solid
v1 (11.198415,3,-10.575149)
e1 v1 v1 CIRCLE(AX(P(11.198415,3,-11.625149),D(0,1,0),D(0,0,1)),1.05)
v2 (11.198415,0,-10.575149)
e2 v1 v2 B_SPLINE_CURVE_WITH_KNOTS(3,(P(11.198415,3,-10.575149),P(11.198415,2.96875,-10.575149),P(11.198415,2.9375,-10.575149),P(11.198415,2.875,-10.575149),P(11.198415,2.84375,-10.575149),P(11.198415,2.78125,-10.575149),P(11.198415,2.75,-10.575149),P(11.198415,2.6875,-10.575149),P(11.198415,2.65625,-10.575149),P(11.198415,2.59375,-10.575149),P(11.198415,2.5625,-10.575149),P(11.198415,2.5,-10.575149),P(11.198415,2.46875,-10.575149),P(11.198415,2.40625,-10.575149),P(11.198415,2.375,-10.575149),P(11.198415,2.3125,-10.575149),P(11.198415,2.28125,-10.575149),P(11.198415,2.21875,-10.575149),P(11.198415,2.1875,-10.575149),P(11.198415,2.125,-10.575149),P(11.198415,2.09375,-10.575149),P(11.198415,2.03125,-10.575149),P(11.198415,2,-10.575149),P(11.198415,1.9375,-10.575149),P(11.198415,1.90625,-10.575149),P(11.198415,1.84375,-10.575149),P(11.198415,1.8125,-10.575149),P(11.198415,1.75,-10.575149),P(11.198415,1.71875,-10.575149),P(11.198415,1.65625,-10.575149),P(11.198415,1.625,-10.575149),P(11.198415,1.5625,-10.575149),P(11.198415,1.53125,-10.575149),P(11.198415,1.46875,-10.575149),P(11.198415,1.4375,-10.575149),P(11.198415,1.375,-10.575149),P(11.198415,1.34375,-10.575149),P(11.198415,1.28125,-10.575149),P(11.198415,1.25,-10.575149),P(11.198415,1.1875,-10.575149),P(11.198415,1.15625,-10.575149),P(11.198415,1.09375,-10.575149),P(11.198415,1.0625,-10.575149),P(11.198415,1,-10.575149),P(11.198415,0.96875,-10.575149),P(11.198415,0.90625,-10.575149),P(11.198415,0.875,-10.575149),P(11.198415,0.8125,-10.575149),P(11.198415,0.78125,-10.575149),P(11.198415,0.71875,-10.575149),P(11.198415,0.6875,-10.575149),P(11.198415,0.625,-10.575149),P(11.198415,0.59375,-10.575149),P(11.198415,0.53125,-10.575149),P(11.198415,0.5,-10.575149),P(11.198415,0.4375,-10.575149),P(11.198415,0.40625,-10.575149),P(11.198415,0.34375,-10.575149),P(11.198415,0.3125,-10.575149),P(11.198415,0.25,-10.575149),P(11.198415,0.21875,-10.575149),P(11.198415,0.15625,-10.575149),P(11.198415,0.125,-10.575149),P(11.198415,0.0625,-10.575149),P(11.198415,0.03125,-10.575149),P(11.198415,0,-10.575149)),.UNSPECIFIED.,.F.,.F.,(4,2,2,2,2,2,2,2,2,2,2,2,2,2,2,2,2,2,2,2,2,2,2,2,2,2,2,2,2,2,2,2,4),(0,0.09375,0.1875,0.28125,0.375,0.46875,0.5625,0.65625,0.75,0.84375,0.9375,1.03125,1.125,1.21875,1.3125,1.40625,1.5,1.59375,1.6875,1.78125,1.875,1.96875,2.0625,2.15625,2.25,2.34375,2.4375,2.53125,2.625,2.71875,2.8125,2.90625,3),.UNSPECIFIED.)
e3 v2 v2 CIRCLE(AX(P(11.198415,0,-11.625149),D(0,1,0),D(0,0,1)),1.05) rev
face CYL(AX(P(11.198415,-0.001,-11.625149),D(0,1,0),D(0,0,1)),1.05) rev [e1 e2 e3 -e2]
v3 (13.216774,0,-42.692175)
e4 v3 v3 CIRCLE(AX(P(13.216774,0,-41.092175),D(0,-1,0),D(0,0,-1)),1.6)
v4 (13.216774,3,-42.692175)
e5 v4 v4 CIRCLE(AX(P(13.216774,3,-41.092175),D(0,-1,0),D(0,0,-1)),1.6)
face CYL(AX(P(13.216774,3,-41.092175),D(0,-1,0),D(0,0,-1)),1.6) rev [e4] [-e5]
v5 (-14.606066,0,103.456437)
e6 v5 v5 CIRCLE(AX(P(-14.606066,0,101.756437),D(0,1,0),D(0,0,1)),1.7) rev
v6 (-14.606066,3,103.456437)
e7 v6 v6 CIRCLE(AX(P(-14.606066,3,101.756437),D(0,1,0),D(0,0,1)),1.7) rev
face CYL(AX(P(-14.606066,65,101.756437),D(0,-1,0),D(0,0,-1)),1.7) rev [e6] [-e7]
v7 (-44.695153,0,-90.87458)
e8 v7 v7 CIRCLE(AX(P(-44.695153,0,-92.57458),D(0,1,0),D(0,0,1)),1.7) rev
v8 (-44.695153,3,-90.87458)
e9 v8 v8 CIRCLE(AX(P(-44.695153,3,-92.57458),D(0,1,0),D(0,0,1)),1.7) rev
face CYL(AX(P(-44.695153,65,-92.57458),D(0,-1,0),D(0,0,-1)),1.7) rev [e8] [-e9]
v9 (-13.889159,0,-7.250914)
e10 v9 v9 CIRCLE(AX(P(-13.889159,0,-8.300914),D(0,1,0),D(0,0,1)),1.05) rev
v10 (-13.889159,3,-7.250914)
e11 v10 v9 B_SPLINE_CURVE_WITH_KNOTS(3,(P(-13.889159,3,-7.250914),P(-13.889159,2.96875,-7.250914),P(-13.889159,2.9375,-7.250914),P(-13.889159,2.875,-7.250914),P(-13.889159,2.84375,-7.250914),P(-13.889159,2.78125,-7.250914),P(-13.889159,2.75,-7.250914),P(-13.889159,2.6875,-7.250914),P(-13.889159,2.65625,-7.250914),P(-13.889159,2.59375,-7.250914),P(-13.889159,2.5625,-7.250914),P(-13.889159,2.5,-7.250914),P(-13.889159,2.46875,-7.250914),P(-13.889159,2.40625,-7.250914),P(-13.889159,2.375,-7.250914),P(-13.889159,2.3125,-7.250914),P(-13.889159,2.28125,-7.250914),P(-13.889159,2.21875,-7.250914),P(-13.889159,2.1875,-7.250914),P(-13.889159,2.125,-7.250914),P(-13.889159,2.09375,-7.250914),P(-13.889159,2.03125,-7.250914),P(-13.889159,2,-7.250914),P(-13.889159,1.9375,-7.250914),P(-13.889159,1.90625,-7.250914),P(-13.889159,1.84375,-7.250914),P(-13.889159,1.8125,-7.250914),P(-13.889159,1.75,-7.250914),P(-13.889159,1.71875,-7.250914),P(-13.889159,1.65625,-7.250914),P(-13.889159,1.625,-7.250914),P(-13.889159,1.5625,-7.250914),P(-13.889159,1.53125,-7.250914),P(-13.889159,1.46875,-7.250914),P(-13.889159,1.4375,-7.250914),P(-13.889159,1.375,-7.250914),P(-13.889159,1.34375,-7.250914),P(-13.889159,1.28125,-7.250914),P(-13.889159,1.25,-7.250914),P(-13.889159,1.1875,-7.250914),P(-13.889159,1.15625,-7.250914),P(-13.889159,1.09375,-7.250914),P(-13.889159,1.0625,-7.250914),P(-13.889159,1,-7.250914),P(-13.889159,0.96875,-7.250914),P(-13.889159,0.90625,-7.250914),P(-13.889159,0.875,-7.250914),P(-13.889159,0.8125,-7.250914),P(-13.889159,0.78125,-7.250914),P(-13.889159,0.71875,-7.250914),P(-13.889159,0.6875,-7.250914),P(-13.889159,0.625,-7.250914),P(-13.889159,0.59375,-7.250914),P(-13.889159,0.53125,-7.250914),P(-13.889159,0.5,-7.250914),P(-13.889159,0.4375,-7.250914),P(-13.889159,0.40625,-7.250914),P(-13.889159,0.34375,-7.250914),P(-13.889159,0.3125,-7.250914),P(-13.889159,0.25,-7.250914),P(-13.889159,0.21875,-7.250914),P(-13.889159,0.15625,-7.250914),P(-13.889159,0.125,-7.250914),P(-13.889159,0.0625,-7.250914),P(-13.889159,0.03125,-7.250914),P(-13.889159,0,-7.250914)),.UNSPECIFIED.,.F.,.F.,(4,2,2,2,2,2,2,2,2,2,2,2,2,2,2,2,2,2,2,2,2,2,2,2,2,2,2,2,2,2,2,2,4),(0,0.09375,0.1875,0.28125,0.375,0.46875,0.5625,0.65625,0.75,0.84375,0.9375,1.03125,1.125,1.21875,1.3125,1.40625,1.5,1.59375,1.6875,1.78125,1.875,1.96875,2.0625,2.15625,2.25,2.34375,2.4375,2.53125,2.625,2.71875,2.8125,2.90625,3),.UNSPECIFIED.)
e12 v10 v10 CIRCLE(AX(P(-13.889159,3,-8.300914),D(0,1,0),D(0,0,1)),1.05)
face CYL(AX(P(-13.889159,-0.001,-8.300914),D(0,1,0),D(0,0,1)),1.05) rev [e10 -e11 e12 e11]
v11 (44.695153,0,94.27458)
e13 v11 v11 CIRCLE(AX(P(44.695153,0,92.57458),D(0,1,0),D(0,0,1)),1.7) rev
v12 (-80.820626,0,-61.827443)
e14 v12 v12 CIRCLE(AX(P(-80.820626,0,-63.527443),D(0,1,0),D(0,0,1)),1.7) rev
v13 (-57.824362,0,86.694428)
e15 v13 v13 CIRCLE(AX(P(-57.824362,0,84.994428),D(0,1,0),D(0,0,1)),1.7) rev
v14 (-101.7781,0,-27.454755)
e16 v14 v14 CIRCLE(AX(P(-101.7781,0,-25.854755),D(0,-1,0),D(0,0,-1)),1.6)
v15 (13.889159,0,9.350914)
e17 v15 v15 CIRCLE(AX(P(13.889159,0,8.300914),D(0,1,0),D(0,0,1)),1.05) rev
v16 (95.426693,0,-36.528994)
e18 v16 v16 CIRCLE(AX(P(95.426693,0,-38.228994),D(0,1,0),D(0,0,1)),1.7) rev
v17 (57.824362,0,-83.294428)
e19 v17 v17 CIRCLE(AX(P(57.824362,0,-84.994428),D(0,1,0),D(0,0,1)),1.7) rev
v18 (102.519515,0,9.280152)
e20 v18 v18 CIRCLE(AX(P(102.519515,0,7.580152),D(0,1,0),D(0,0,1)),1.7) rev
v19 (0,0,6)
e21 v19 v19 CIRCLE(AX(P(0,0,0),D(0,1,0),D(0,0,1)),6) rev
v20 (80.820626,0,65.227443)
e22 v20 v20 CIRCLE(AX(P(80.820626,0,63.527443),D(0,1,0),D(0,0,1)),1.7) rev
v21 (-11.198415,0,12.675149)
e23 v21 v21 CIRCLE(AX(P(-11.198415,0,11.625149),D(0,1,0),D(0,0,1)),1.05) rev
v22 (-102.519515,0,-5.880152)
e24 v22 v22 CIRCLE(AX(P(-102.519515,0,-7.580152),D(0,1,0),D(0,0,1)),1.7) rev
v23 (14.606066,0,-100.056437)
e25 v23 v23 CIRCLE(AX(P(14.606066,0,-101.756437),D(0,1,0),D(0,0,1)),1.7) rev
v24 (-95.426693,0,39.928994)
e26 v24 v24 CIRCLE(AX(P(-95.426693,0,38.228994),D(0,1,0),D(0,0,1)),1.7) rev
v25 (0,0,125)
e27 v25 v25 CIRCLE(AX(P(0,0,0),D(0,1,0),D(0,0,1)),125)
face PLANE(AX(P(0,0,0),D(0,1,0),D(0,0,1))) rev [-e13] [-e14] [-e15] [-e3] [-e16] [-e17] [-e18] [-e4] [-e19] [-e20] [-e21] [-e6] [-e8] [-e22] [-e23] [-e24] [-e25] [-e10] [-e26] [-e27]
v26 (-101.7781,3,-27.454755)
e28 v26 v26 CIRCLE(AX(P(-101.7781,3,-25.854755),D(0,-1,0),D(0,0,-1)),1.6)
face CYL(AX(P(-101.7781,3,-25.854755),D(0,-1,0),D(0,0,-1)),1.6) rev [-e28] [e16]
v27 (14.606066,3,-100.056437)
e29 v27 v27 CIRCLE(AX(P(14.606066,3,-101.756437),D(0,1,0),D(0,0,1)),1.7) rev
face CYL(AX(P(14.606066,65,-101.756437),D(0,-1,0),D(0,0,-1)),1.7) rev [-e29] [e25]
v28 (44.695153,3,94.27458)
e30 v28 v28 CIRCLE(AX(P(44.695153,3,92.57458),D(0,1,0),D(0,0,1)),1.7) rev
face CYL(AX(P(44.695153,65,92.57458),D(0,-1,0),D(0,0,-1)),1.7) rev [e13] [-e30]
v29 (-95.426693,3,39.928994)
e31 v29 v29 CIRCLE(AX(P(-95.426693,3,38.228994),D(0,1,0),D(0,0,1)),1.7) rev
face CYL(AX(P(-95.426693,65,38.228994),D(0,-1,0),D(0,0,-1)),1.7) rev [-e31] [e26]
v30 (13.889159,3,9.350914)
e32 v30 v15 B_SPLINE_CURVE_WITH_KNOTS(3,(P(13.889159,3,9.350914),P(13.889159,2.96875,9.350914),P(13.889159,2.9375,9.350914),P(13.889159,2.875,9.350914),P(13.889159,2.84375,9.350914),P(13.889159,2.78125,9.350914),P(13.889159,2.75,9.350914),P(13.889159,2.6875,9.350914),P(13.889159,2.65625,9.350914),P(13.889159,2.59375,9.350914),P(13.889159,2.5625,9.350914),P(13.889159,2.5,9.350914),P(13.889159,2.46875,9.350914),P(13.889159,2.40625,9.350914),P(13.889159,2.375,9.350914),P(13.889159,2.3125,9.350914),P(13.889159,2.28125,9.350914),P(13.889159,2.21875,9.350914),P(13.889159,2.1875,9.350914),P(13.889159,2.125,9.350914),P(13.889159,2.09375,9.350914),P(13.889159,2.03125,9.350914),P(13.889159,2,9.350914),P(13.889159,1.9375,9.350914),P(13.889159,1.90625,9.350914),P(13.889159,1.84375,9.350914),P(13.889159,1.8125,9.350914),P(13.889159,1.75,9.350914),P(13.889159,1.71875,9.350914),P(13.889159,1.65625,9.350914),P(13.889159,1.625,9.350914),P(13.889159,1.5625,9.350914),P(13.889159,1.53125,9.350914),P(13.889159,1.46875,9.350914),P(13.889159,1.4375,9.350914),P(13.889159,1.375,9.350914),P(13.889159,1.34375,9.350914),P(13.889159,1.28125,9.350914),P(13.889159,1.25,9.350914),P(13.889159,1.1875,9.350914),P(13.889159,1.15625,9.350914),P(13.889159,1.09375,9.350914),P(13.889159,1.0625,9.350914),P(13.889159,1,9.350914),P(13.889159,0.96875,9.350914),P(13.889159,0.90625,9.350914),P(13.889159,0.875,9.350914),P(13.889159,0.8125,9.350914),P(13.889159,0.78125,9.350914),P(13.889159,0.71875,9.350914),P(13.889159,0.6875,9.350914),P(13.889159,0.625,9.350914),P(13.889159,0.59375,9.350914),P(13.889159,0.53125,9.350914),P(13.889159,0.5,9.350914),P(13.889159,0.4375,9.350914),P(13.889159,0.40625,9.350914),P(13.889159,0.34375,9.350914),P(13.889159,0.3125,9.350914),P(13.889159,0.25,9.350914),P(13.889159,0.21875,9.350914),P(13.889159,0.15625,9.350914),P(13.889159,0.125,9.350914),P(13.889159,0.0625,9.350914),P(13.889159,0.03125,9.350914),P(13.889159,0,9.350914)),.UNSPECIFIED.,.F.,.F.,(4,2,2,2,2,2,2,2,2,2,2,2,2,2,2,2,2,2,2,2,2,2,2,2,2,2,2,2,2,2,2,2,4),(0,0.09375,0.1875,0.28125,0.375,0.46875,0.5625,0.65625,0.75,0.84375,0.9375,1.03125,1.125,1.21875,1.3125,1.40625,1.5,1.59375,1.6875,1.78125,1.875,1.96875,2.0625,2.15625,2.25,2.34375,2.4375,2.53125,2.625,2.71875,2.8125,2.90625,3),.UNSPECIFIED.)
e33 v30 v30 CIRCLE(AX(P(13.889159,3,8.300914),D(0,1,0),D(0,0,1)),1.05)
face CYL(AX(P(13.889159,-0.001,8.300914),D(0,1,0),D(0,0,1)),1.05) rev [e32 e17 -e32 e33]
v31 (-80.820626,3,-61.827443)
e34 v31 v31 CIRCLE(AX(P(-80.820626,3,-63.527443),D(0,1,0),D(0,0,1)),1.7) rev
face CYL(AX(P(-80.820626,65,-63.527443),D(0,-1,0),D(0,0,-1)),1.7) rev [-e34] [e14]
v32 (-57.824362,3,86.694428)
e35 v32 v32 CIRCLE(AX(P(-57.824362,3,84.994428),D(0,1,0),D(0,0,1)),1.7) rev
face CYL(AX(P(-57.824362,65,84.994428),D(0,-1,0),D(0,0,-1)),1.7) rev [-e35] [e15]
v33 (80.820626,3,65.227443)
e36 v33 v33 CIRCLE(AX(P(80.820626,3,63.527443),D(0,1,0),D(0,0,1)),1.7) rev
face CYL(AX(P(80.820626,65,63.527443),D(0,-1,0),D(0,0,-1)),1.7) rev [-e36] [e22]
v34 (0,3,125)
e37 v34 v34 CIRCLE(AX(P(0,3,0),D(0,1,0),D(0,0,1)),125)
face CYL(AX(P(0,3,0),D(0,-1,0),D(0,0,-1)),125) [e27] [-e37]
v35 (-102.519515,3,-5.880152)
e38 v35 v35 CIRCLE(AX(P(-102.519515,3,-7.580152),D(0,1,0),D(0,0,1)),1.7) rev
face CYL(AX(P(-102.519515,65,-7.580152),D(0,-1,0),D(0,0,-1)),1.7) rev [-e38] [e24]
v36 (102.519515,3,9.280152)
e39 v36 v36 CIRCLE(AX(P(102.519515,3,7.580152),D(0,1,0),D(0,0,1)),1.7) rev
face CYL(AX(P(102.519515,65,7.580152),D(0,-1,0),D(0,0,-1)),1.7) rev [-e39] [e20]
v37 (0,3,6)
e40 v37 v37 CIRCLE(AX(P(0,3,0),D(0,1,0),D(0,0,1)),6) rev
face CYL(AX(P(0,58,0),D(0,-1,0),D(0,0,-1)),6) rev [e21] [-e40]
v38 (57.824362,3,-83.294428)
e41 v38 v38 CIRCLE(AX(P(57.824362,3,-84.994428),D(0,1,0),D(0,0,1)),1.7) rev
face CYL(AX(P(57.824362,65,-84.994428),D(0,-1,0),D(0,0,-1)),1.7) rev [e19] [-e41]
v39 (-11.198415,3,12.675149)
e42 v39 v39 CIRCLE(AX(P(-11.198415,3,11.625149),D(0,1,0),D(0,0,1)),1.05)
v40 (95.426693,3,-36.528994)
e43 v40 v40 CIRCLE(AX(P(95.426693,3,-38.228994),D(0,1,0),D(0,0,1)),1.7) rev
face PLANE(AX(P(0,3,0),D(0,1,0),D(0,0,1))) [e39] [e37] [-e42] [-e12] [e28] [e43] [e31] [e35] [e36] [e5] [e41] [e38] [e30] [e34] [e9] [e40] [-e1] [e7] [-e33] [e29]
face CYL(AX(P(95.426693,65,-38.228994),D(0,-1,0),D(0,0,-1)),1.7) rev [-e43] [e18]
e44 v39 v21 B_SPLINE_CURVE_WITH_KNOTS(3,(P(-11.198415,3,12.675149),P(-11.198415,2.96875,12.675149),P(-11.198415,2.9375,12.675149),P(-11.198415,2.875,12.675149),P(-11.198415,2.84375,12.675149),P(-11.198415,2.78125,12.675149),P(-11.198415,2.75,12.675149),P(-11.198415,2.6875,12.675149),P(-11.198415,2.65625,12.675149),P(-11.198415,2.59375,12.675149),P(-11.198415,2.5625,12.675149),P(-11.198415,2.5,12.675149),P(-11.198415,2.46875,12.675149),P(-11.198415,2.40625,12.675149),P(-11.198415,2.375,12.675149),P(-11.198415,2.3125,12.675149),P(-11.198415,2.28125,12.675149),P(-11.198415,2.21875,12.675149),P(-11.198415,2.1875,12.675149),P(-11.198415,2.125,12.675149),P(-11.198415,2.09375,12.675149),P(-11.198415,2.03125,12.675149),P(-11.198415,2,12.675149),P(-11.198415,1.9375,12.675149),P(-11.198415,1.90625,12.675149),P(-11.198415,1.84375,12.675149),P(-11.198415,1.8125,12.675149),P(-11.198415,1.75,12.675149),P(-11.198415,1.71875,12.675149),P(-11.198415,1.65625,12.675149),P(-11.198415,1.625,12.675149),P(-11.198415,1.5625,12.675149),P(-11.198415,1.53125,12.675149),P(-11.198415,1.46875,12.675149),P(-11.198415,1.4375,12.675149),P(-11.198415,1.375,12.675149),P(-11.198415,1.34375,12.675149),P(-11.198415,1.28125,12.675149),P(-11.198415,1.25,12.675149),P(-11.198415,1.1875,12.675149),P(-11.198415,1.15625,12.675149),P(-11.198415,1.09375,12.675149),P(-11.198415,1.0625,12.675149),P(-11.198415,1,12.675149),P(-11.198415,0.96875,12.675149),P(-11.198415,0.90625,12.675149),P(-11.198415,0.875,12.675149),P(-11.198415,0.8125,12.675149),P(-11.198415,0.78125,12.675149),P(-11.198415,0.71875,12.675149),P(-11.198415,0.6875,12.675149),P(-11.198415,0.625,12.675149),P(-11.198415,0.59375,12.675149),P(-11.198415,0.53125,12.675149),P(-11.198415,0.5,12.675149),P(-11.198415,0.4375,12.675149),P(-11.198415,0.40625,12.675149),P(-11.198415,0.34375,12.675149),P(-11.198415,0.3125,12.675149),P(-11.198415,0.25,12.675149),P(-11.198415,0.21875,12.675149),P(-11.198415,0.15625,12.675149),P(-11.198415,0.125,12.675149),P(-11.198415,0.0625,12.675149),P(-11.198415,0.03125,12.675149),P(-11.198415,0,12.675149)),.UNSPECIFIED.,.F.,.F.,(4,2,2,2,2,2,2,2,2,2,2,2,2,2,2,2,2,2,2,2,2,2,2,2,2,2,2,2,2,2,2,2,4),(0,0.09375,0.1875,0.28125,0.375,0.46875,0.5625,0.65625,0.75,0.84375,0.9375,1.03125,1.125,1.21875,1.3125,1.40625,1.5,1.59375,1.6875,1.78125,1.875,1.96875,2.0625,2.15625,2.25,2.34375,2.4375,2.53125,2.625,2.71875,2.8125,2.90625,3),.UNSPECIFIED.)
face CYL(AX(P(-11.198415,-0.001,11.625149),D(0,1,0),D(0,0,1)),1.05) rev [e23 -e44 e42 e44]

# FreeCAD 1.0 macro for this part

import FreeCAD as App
import Part
import Sketcher
Q = App.Units.Quantity

doc = App.newDocument("Part")
body = doc.addObject("PartDesign::Body", "Body")

# Sketch on XZ plane
sketch1 = body.newObject("Sketcher::SketchObject", "Sketch")
sketch1.AttachmentSupport = (doc.getObject("XZ_Plane"), [""])
sketch1.MapMode = "FlatFace"
sketch1.addGeometry(Part.Circle(App.Vector(0, 0, 0), App.Vector(0, 0, 1), 125), False)
sketch1.addConstraint([
    Sketcher.Constraint("Coincident", 0, 3, -1, 1),
    Sketcher.Constraint("Diameter", 0, Q("250 mm")),
])
pad1 = body.newObject("PartDesign::Pad", "Pad")
pad1.Profile = sketch1
pad1.Length = 3
pad1.Reversed = True

# Sketch on XZ plane
sketch2 = body.newObject("Sketcher::SketchObject", "Sketch001")
sketch2.AttachmentSupport = (doc.getObject("XZ_Plane"), [""])
sketch2.MapMode = "FlatFace"
sketch2.AttachmentOffset = App.Placement(App.Vector(0, 0, 23), App.Rotation())
sketch2.addGeometry([
    Part.Circle(App.Vector(57.8, -85, 0), App.Vector(0, 0, 1), 1.7),  # 0
    Part.Circle(App.Vector(14.6, -101.8, 0), App.Vector(0, 0, 1), 1.7),  # 1
    Part.Circle(App.Vector(44.7, 92.6, 0), App.Vector(0, 0, 1), 1.7),  # 2
    Part.Circle(App.Vector(80.8, 63.5, 0), App.Vector(0, 0, 1), 1.7),  # 3
    Part.Circle(App.Vector(-102.5, -7.6, 0), App.Vector(0, 0, 1), 1.7),  # 4
    Part.Circle(App.Vector(-95.4, 38.2, 0), App.Vector(0, 0, 1), 1.7),  # 5
], False)
sketch2.addConstraint([
    Sketcher.Constraint("Equal", 0, 1),
    Sketcher.Constraint("Equal", 1, 2),
    Sketcher.Constraint("Equal", 2, 3),
    Sketcher.Constraint("Equal", 3, 4),
    Sketcher.Constraint("Equal", 4, 5),
    Sketcher.Constraint("Diameter", 0, Q("3.4 mm")),
    Sketcher.Constraint("DistanceX", -1, 1, 0, 3, Q("57.824362 mm")),
    Sketcher.Constraint("DistanceY", 0, 3, -1, 1, Q("84.994428 mm")),
    Sketcher.Constraint("DistanceY", -1, 1, 2, 3, Q("92.57458 mm")),
    Sketcher.Constraint("DistanceY", 1, 3, 0, 3, Q("16.762009 mm")),
    Sketcher.Constraint("DistanceX", 2, 3, 0, 3, Q("13.129209 mm")),
    Sketcher.Constraint("DistanceY", 0, 3, 3, 3, Q("148.521871 mm")),
    Sketcher.Constraint("DistanceX", 1, 3, 3, 3, Q("66.21456 mm")),
    Sketcher.Constraint("DistanceX", 4, 3, 1, 3, Q("117.125581 mm")),
    Sketcher.Constraint("DistanceX", 5, 3, 1, 3, Q("110.032759 mm")),
    Sketcher.Constraint("DistanceY", 1, 3, 5, 3, Q("139.985431 mm")),
    Sketcher.Constraint("DistanceX", -1, 1, 1, 3, Q("14.606066 mm")),
    Sketcher.Constraint("DistanceY", 4, 3, -1, 1, Q("7.580152 mm")),
])
pocket1 = body.newObject("PartDesign::Pocket", "Pocket")
pocket1.Profile = sketch2
pocket1.Length = 88

# Sketch on XZ plane
sketch3 = body.newObject("Sketcher::SketchObject", "Sketch002")
sketch3.AttachmentSupport = (doc.getObject("XZ_Plane"), [""])
sketch3.MapMode = "FlatFace"
sketch3.AttachmentOffset = App.Placement(App.Vector(0, 0, -3), App.Rotation())
sketch3.addGeometry(Part.Circle(App.Vector(0, 0, 0), App.Vector(0, 0, 1), 6), False)
sketch3.addConstraint([
    Sketcher.Constraint("Coincident", 0, 3, -1, 1),
    Sketcher.Constraint("Diameter", 0, Q("12 mm")),
])
pocket2 = body.newObject("PartDesign::Pocket", "Pocket001")
pocket2.Profile = sketch3
pocket2.Type = "ThroughAll"
pocket2.Midplane = True

# Sketch on XZ plane
sketch4 = body.newObject("Sketcher::SketchObject", "Sketch003")
sketch4.AttachmentSupport = (doc.getObject("XZ_Plane"), [""])
sketch4.MapMode = "FlatFace"
sketch4.addGeometry([
    Part.Circle(App.Vector(-101.8, -25.9, 0), App.Vector(0, 0, 1), 1.6),
    Part.Circle(App.Vector(13.2, -41.1, 0), App.Vector(0, 0, 1), 1.6),
], False)
sketch4.addConstraint([
    Sketcher.Constraint("Equal", 0, 1),
    Sketcher.Constraint("Diameter", 0, Q("3.2 mm")),
    Sketcher.Constraint("DistanceX", 0, 3, -1, 1, Q("101.7781 mm")),
    Sketcher.Constraint("DistanceY", 1, 3, 0, 3, Q("15.23742 mm")),
    Sketcher.Constraint("DistanceY", 0, 3, -1, 1, Q("25.854755 mm")),
    Sketcher.Constraint("DistanceX", -1, 1, 1, 3, Q("13.216774 mm")),
])
pocket3 = body.newObject("PartDesign::Pocket", "Pocket002")
pocket3.Profile = sketch4
pocket3.Type = "ThroughAll"

# Sketch on XZ plane
sketch5 = body.newObject("Sketcher::SketchObject", "Sketch004")
sketch5.AttachmentSupport = (doc.getObject("XZ_Plane"), [""])
sketch5.MapMode = "FlatFace"
sketch5.AttachmentOffset = App.Placement(App.Vector(0, 0, -3), App.Rotation())
sketch5.addGeometry(Part.Circle(App.Vector(11.2, -11.6, 0), App.Vector(0, 0, 1), 1.1), False)
sketch5.addConstraint([
    Sketcher.Constraint("Diameter", 0, Q("2.1 mm")),
    Sketcher.Constraint("DistanceY", 0, 3, -1, 1, Q("11.625149 mm")),
    Sketcher.Constraint("DistanceX", -1, 1, 0, 3, Q("11.198415 mm")),
])
pocket4 = body.newObject("PartDesign::Pocket", "Pocket003")
pocket4.Profile = sketch5
pocket4.Type = "UpToFirst"
pocket4.Reversed = True

# Sketch on XZ plane
sketch6 = body.newObject("Sketcher::SketchObject", "Sketch005")
sketch6.AttachmentSupport = (doc.getObject("XZ_Plane"), [""])
sketch6.MapMode = "FlatFace"
sketch6.AttachmentOffset = App.Placement(App.Vector(0, 0, -3), App.Rotation())
sketch6.addGeometry(Part.Circle(App.Vector(13.9, 8.3, 0), App.Vector(0, 0, 1), 1.1), False)
sketch6.addConstraint([
    Sketcher.Constraint("Diameter", 0, Q("2.1 mm")),
    Sketcher.Constraint("DistanceX", -1, 1, 0, 3, Q("13.889159 mm")),
    Sketcher.Constraint("DistanceY", -1, 1, 0, 3, Q("8.300914 mm")),
])
pocket5 = body.newObject("PartDesign::Pocket", "Pocket004")
pocket5.Profile = sketch6
pocket5.Type = "UpToFirst"
pocket5.Reversed = True

# Sketch on XZ plane
sketch7 = body.newObject("Sketcher::SketchObject", "Sketch006")
sketch7.AttachmentSupport = (doc.getObject("XZ_Plane"), [""])
sketch7.MapMode = "FlatFace"
sketch7.AttachmentOffset = App.Placement(App.Vector(0, 0, -3), App.Rotation())
sketch7.addGeometry(Part.Circle(App.Vector(-11.2, 11.6, 0), App.Vector(0, 0, 1), 1.1), False)
sketch7.addConstraint([
    Sketcher.Constraint("Diameter", 0, Q("2.1 mm")),
    Sketcher.Constraint("DistanceY", -1, 1, 0, 3, Q("11.625149 mm")),
    Sketcher.Constraint("DistanceX", 0, 3, -1, 1, Q("11.198415 mm")),
])
pocket6 = body.newObject("PartDesign::Pocket", "Pocket005")
pocket6.Profile = sketch7
pocket6.Type = "UpToFirst"
pocket6.Reversed = True

# Sketch on XZ plane
sketch8 = body.newObject("Sketcher::SketchObject", "Sketch007")
sketch8.AttachmentSupport = (doc.getObject("XZ_Plane"), [""])
sketch8.MapMode = "FlatFace"
sketch8.AttachmentOffset = App.Placement(App.Vector(0, 0, -3), App.Rotation())
sketch8.addGeometry(Part.Circle(App.Vector(-13.9, -8.3, 0), App.Vector(0, 0, 1), 1.1), False)
sketch8.addConstraint([
    Sketcher.Constraint("Diameter", 0, Q("2.1 mm")),
    Sketcher.Constraint("DistanceX", 0, 3, -1, 1, Q("13.889159 mm")),
    Sketcher.Constraint("DistanceY", 0, 3, -1, 1, Q("8.300914 mm")),
])
pocket7 = body.newObject("PartDesign::Pocket", "Pocket006")
pocket7.Profile = sketch8
pocket7.Type = "UpToFirst"
pocket7.Reversed = True
doc.recompute()

polarpattern = body.newObject("PartDesign::PolarPattern", "PolarPattern")
polarpattern.Originals = [pocket1]
polarpattern.Axis = (doc.getObject("Y_Axis"), [""])
polarpattern.Angle = 360
polarpattern.Occurrences = 6
body.Tip = polarpattern

doc.recompute()
